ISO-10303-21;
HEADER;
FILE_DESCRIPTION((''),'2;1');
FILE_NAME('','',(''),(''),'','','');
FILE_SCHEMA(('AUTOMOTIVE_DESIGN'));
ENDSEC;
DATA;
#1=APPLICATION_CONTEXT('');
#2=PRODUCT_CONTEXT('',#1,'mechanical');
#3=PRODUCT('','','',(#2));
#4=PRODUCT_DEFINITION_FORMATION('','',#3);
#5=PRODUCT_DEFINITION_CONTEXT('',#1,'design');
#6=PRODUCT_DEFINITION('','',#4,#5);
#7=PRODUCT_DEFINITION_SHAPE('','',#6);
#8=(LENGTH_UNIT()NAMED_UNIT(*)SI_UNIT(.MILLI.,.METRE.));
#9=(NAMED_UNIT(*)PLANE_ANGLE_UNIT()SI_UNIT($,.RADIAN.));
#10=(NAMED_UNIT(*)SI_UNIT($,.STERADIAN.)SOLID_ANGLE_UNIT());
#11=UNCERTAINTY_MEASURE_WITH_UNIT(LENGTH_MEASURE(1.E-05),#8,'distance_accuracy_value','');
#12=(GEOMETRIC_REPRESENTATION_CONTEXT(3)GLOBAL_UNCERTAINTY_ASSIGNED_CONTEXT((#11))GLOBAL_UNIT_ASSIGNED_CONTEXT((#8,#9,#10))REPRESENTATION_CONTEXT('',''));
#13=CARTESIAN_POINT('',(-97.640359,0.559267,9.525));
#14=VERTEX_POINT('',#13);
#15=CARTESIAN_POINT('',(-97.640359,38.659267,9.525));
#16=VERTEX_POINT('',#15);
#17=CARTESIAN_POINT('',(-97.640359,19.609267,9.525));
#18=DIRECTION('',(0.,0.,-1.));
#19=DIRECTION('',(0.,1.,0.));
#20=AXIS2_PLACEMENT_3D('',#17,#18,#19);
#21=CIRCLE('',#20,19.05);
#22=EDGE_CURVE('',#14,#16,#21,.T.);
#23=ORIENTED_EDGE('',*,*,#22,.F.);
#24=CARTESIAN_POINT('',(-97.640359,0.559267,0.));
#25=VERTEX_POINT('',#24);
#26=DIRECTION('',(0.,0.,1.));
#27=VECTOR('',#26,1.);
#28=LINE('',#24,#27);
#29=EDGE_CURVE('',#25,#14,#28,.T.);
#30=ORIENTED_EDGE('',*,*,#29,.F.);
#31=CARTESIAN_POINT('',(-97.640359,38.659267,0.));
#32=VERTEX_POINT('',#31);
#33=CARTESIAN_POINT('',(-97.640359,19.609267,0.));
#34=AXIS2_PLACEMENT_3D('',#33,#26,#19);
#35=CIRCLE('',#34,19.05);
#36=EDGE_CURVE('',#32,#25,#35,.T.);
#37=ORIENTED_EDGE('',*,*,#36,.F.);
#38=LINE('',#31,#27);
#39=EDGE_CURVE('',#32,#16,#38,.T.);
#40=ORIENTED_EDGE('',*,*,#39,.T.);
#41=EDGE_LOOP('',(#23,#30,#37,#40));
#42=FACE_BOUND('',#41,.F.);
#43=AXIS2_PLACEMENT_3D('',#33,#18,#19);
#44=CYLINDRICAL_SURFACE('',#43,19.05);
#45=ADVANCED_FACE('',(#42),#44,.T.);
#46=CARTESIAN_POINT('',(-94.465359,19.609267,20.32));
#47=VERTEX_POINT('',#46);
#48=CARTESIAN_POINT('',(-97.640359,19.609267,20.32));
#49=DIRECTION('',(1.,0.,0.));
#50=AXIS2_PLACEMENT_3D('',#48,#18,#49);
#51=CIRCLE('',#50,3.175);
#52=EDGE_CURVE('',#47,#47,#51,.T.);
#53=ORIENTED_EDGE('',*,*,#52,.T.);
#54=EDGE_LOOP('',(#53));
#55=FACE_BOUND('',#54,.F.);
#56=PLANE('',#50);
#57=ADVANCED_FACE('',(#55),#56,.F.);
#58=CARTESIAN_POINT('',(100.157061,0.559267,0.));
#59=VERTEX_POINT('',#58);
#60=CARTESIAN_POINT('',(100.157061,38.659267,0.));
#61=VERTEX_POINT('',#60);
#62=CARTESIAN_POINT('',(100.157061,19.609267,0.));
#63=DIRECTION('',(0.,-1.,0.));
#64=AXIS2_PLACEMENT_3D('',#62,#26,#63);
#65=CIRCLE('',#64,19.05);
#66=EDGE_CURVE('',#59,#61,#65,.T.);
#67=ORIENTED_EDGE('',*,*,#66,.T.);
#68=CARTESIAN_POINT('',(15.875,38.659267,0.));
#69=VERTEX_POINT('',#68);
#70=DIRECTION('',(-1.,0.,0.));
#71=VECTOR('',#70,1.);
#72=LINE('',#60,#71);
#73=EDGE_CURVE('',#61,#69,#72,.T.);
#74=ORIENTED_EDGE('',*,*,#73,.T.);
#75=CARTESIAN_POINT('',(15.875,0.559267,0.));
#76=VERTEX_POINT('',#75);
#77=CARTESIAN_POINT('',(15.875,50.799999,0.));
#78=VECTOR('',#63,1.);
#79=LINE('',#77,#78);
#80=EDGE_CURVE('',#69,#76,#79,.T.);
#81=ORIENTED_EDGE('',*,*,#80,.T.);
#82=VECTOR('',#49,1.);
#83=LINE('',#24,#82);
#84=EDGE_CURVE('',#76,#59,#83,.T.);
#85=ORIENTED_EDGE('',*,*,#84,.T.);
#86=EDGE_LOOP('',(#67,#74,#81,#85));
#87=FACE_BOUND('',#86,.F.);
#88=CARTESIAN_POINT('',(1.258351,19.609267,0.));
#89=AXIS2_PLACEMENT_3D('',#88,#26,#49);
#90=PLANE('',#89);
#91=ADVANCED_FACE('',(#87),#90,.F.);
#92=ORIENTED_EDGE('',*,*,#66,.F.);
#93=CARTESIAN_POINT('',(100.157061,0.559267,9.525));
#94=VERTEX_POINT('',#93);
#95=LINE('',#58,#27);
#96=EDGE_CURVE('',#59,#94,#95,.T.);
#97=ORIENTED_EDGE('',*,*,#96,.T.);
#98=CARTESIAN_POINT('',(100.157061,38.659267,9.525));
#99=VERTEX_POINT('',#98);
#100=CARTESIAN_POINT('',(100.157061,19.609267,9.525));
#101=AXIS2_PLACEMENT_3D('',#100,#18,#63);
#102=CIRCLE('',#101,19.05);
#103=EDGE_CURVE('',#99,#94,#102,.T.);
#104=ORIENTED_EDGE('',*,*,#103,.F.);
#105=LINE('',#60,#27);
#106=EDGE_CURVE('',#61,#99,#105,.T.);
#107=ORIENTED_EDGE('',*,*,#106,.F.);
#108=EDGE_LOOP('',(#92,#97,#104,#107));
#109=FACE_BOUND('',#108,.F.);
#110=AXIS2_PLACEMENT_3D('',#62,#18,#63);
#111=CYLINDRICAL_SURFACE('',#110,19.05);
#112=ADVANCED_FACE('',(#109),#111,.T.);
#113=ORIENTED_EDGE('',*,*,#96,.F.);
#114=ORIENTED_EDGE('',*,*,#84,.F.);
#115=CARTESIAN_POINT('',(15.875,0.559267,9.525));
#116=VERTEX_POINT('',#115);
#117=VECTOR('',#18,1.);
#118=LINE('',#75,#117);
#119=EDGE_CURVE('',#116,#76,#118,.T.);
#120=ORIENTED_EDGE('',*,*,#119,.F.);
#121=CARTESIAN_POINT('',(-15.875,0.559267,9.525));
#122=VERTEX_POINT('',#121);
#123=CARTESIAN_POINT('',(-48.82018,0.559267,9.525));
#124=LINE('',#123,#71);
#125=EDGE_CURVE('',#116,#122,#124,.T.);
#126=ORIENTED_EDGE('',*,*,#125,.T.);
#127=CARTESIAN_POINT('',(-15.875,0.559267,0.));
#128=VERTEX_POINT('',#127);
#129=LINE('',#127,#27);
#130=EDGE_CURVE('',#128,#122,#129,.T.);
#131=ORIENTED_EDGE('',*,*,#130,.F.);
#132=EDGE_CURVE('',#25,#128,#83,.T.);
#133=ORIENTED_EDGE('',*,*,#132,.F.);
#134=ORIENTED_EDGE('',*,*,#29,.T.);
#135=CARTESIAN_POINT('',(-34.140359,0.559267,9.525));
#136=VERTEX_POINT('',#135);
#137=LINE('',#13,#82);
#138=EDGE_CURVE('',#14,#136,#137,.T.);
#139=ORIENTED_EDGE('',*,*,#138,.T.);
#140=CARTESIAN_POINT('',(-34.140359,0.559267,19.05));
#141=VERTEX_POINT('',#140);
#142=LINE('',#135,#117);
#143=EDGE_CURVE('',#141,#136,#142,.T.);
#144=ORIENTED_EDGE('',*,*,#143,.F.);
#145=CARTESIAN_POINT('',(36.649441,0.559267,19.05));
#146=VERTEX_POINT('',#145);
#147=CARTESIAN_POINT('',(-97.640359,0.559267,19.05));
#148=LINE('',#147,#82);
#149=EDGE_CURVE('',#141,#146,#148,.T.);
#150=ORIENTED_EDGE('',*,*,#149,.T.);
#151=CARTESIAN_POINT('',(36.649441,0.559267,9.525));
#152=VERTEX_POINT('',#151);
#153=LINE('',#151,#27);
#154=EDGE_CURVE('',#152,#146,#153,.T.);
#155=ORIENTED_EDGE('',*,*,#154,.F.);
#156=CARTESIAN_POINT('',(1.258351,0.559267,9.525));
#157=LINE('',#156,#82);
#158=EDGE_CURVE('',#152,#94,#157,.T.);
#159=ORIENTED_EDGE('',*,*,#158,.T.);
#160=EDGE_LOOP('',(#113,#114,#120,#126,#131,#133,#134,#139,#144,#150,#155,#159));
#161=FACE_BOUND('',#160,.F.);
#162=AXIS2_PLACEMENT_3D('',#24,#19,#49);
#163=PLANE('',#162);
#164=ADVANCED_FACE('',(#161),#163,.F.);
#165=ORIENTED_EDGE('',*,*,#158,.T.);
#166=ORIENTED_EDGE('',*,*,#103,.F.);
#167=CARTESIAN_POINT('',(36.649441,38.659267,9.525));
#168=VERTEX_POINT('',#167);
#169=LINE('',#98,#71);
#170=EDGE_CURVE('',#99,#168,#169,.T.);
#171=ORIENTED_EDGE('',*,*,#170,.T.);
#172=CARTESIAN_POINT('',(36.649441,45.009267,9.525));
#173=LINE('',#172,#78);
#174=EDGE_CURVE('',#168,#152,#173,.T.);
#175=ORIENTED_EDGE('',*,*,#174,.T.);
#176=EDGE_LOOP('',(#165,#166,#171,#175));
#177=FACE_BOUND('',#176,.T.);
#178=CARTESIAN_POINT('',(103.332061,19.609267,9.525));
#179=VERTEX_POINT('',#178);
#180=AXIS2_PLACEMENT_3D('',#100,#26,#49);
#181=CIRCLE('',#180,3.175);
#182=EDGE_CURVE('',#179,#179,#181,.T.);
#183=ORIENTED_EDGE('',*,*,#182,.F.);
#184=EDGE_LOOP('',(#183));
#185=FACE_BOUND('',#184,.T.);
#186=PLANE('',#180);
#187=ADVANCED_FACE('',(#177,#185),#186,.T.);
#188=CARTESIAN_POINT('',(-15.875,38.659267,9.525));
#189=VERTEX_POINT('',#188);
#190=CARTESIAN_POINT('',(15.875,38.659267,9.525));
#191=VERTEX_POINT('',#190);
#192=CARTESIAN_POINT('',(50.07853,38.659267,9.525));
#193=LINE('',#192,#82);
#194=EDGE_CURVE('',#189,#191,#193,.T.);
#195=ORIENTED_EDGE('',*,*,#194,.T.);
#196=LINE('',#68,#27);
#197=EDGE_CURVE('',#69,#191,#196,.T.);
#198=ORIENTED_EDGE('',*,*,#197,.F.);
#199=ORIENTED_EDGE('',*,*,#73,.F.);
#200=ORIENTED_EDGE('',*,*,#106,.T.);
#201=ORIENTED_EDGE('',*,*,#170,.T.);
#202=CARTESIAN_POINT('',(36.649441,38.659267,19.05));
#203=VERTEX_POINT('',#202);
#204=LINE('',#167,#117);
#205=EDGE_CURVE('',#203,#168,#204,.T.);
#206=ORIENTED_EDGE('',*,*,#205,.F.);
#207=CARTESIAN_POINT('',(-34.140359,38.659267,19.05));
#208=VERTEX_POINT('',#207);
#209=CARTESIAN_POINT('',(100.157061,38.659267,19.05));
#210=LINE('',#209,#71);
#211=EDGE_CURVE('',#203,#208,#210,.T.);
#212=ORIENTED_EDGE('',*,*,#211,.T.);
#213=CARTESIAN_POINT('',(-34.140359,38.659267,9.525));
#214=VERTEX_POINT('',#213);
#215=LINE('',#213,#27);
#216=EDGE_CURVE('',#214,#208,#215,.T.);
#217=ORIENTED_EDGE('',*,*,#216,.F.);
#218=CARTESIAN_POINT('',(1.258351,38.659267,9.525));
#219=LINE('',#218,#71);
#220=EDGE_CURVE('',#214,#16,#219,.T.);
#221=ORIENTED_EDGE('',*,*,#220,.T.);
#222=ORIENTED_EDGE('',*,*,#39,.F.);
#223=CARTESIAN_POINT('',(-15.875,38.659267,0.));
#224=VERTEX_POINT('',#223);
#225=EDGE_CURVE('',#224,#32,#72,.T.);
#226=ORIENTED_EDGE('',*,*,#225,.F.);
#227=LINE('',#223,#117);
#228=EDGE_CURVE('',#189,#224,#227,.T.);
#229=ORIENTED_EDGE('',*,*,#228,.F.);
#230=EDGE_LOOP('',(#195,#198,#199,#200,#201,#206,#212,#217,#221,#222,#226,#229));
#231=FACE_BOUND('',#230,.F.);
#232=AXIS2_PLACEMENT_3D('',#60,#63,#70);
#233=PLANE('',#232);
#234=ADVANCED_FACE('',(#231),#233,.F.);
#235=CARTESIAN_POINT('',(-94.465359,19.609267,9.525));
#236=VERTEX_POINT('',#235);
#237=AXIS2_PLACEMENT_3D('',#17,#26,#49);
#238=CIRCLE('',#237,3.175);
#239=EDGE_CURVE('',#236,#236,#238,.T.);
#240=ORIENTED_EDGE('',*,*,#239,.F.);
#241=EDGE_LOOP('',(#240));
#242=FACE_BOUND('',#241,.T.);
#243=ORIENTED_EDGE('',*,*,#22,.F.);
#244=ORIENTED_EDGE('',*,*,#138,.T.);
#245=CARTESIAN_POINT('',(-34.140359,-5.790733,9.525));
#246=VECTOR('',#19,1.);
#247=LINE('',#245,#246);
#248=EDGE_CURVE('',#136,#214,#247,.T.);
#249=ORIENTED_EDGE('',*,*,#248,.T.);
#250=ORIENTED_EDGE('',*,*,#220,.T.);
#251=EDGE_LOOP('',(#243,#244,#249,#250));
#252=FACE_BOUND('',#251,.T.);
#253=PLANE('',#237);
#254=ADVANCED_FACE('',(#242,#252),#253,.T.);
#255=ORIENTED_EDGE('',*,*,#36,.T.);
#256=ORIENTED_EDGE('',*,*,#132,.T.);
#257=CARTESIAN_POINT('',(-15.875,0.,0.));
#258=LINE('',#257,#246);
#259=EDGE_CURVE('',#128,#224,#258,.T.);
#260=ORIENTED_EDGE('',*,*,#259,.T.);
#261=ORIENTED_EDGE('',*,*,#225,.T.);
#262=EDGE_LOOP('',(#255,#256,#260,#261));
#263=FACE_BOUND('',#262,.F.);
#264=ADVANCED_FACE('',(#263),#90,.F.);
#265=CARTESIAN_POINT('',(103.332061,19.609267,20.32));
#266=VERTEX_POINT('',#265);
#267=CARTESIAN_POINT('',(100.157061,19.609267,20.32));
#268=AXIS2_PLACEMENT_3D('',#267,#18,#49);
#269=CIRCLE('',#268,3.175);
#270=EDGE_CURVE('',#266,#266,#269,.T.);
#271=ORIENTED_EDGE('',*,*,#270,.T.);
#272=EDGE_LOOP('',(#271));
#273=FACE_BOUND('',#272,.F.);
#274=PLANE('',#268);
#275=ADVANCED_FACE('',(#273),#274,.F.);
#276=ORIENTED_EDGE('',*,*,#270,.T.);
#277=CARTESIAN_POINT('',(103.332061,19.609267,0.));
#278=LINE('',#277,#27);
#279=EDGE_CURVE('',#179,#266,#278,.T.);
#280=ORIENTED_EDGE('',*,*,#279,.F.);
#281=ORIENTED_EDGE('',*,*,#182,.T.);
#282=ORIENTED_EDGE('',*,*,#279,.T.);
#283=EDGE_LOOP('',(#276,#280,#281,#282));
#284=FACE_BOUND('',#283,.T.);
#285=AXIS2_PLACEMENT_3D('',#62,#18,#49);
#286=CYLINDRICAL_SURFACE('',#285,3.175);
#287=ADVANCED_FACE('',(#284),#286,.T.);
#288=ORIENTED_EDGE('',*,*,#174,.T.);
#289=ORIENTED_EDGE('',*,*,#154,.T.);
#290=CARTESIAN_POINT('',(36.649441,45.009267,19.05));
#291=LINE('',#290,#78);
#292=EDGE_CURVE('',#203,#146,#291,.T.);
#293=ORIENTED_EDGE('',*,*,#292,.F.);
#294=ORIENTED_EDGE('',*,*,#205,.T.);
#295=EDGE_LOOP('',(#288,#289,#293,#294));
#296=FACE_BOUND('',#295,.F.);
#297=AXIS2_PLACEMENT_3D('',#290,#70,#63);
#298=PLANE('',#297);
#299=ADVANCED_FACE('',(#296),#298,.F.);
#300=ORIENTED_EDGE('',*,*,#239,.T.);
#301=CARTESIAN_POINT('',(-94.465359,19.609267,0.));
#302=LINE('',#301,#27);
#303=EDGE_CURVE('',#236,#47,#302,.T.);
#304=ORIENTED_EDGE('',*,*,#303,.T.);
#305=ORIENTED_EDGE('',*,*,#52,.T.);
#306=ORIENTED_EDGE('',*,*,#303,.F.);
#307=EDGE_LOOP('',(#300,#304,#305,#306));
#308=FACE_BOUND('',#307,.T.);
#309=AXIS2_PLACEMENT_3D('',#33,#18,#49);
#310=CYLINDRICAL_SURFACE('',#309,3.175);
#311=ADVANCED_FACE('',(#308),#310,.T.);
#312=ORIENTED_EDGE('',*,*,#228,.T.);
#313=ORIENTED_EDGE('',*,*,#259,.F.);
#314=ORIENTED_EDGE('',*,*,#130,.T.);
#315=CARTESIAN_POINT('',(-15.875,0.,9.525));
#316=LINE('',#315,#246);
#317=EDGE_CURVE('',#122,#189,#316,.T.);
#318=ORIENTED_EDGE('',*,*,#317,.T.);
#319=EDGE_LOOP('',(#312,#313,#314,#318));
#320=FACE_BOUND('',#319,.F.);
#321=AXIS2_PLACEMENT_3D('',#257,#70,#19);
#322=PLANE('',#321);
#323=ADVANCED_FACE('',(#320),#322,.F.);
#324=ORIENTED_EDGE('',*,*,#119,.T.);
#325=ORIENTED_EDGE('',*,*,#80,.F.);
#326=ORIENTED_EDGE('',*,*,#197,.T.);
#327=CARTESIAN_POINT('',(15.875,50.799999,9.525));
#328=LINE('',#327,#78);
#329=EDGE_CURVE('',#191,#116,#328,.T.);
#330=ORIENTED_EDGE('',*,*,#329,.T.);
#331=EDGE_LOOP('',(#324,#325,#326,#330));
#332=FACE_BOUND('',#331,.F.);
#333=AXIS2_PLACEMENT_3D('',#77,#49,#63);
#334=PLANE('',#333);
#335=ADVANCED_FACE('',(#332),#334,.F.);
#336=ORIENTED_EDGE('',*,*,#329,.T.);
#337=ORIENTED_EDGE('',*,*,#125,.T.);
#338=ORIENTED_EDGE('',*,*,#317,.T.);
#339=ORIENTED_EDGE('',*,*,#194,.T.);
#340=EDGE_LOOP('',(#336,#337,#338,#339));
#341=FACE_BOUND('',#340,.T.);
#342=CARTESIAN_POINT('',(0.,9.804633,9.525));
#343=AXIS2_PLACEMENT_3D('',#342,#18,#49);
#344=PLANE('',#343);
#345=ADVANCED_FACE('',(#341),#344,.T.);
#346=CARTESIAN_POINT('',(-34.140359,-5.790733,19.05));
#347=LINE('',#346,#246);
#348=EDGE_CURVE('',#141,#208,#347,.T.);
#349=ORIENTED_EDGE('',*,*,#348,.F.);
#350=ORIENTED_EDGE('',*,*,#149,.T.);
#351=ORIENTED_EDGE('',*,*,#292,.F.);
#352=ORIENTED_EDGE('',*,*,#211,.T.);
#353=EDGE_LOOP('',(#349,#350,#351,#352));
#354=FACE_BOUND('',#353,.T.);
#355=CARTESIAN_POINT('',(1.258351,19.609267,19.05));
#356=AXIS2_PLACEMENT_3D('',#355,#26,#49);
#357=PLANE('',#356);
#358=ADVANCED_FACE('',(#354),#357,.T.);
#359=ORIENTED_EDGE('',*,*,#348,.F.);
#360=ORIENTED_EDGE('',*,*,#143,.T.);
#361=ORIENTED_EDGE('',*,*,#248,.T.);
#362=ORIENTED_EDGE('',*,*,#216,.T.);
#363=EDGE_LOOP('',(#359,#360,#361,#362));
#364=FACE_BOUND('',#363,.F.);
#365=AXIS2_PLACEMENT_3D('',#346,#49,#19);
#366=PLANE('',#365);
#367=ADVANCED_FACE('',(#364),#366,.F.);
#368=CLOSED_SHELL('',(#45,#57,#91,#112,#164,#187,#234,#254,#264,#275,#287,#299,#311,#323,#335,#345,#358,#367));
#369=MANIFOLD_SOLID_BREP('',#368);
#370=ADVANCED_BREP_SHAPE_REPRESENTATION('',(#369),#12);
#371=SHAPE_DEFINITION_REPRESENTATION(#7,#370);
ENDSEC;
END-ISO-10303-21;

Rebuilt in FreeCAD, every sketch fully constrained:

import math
import FreeCAD as App
import Part
import Sketcher

V = App.Vector
Q = App.Units.Quantity

doc = App.newDocument("Part")
body = doc.addObject("PartDesign::Body", "Body")

# Sketch on XY plane
sketch1 = body.newObject("Sketcher::SketchObject", "Sketch")
sketch1.AttachmentSupport = (doc.getObject("XY_Plane"), [""])
sketch1.MapMode = "FlatFace"
sketch1.addGeometry([
    Part.ArcOfCircle(Part.Circle(V(100.2, 19.6, 0), V(0, 0, 1), 19.1), math.radians(-90), math.radians(90)),  # 0
    Part.LineSegment(V(100.2, 38.7, 0), V(-97.6, 38.7, 0)),  # 1
    Part.ArcOfCircle(Part.Circle(V(-97.6, 19.6, 0), V(0, 0, 1), 19.1), math.radians(90), math.radians(270)),  # 2
    Part.LineSegment(V(-97.6, 0.6, 0), V(100.2, 0.6, 0)),  # 3
    Part.Circle(V(-97.6, 19.6, 0), V(0, 0, 1), 3.2),  # 4
    Part.Circle(V(100.2, 19.6, 0), V(0, 0, 1), 3.2),  # 5
], False)
sketch1.addConstraint([
    Sketcher.Constraint("Tangent", 0, 2, 1, 1),
    Sketcher.Constraint("Tangent", 1, 2, 2, 1),
    Sketcher.Constraint("Tangent", 2, 2, 3, 1),
    Sketcher.Constraint("Tangent", 3, 2, 0, 1),
    Sketcher.Constraint("Horizontal", 1),
    Sketcher.Constraint("Horizontal", 3),
    Sketcher.Constraint("Coincident", 4, 3, 2, 3),
    Sketcher.Constraint("Coincident", 5, 3, 0, 3),
    Sketcher.Constraint("Equal", 4, 5),
    Sketcher.Constraint("Diameter", 4, Q("0.25 in")),
    Sketcher.Constraint("Radius", 0, Q("0.75 in")),
    Sketcher.Constraint("DistanceX", 1, 2, 1, 1, Q("7.7873 in")),
    Sketcher.Constraint("DistanceX", -1, 1, 0, 3, 100.157061),
    Sketcher.Constraint("DistanceY", -1, 1, 0, 3, 19.609267),
])
pad1 = body.newObject("PartDesign::Pad", "Pad")
pad1.Profile = sketch1
pad1.Length = Q("0.75 in")

# Sketch on XY plane
sketch2 = body.newObject("Sketcher::SketchObject", "Sketch001")
sketch2.AttachmentSupport = (doc.getObject("XY_Plane"), [""])
sketch2.MapMode = "FlatFace"
sketch2.AttachmentOffset = App.Placement(V(0, 0, 0.75 * 25.4), App.Rotation())
sketch2.addGeometry([
    Part.LineSegment(V(-34.1, -5.8, 0), V(-34.1, 45, 0)),  # 0
    Part.LineSegment(V(-34.1, 45, 0), V(-97.6, 45, 0)),  # 1
    Part.ArcOfCircle(Part.Circle(V(-97.6, 19.6, 0), V(0, 0, 1), 25.4), math.radians(90), math.radians(270)),  # 2
    Part.LineSegment(V(-97.6, -5.8, 0), V(-34.1, -5.8, 0)),  # 3
    Part.Circle(V(-97.6, 19.6, 0), V(0, 0, 1), 3.2),  # 4
    Part.ArcOfCircle(Part.Circle(V(100.1, 19.6, 0), V(0, 0, 1), 25.4), math.radians(-90), math.radians(90)),  # 5
    Part.LineSegment(V(100.1, 45, 0), V(36.6, 45, 0)),  # 6
    Part.LineSegment(V(36.6, 45, 0), V(36.6, -5.8, 0)),  # 7
    Part.LineSegment(V(36.6, -5.8, 0), V(100.1, -5.8, 0)),  # 8
    Part.Circle(V(100.2, 19.6, 0), V(0, 0, 1), 3.2),  # 9
], False)
sketch2.addConstraint([
    Sketcher.Constraint("Coincident", 0, 2, 1, 1),
    Sketcher.Constraint("Tangent", 1, 2, 2, 1),
    Sketcher.Constraint("Tangent", 2, 2, 3, 1),
    Sketcher.Constraint("Coincident", 3, 2, 0, 1),
    Sketcher.Constraint("Tangent", 5, 2, 6, 1),
    Sketcher.Constraint("Coincident", 6, 2, 7, 1),
    Sketcher.Constraint("Coincident", 7, 2, 8, 1),
    Sketcher.Constraint("Tangent", 8, 2, 5, 1),
    Sketcher.Constraint("Vertical", 0),
    Sketcher.Constraint("Horizontal", 1),
    Sketcher.Constraint("Horizontal", 3),
    Sketcher.Constraint("Horizontal", 6),
    Sketcher.Constraint("Vertical", 7),
    Sketcher.Constraint("Horizontal", 8),
    Sketcher.Constraint("Coincident", 4, 3, 2, 3),
    Sketcher.Constraint("Equal", 2, 5),
    Sketcher.Constraint("Equal", 4, 9),
    Sketcher.Constraint("Horizontal", 4, 3, 5, 3),
    Sketcher.Constraint("Horizontal", 5, 3, 9, 3),
    Sketcher.Constraint("Equal", 3, 6),
    Sketcher.Constraint("Radius", 2, Q("1 in")),
    Sketcher.Constraint("Diameter", 4, Q("0.25 in")),
    Sketcher.Constraint("DistanceX", 1, 2, 1, 1, Q("2.5 in")),
    Sketcher.Constraint("DistanceX", 2, 3, 5, 3, Q("7.787 in")),
    Sketcher.Constraint("DistanceX", 5, 3, 9, 3, Q("0.0003 in")),
    Sketcher.Constraint("DistanceX", 2, 3, -1, 1, 97.640359),
    Sketcher.Constraint("DistanceY", -1, 1, 2, 3, 19.609267),
])
pocket1 = body.newObject("PartDesign::Pocket", "Pocket")
pocket1.Profile = sketch2
pocket1.Length = Q("0.375 in")

# Sketch on XY plane
sketch3 = body.newObject("Sketcher::SketchObject", "Sketch002")
sketch3.AttachmentSupport = (doc.getObject("XY_Plane"), [""])
sketch3.MapMode = "FlatFace"
sketch3.addGeometry([
    Part.LineSegment(V(16, 0, 0), V(-16, 0, 0)),
    Part.LineSegment(V(-16, 0, 0), V(-16, 51, 0)),
    Part.LineSegment(V(-16, 51, 0), V(16, 51, 0)),
    Part.LineSegment(V(16, 51, 0), V(16, 0, 0)),
], False)
sketch3.addConstraint([
    Sketcher.Constraint("Coincident", 0, 2, 1, 1),
    Sketcher.Constraint("Coincident", 1, 2, 2, 1),
    Sketcher.Constraint("Coincident", 2, 2, 3, 1),
    Sketcher.Constraint("Coincident", 3, 2, 0, 1),
    Sketcher.Constraint("Horizontal", 0),
    Sketcher.Constraint("Vertical", 1),
    Sketcher.Constraint("Horizontal", 2),
    Sketcher.Constraint("Vertical", 3),
    Sketcher.Constraint("Symmetric", 0, 2, 3, 2, -1, 1),
    Sketcher.Constraint("DistanceY", 1, 1, 1, 2, Q("2 in")),
    Sketcher.Constraint("DistanceX", 0, 2, 0, 1, Q("1.25 in")),
])
pocket2 = body.newObject("PartDesign::Pocket", "Pocket001")
pocket2.Profile = sketch3
pocket2.Length = Q("0.375 in")
pocket2.Reversed = True

# Sketch on XY plane
sketch4 = body.newObject("Sketcher::SketchObject", "Sketch003")
sketch4.AttachmentSupport = (doc.getObject("XY_Plane"), [""])
sketch4.MapMode = "FlatFace"
sketch4.addGeometry(Part.Circle(V(-97.6, 19.6, 0), V(0, 0, 1), 3.2), False)
sketch4.addConstraint([
    Sketcher.Constraint("Diameter", 0, Q("0.25 in")),
    Sketcher.Constraint("DistanceX", 0, 3, -1, 1, 97.640359),
    Sketcher.Constraint("DistanceY", -1, 1, 0, 3, 19.609267),
])
pad2 = body.newObject("PartDesign::Pad", "Pad001")
pad2.Profile = sketch4
pad2.Length = Q("0.8 in")

# Sketch on XY plane
sketch5 = body.newObject("Sketcher::SketchObject", "Sketch004")
sketch5.AttachmentSupport = (doc.getObject("XY_Plane"), [""])
sketch5.MapMode = "FlatFace"
sketch5.addGeometry(Part.Circle(V(100.2, 19.6, 0), V(0, 0, 1), 3.2), False)
sketch5.addConstraint([
    Sketcher.Constraint("Diameter", 0, Q("0.25 in")),
    Sketcher.Constraint("DistanceX", -1, 1, 0, 3, 100.157061),
    Sketcher.Constraint("DistanceY", -1, 1, 0, 3, 19.609267),
])
pad3 = body.newObject("PartDesign::Pad", "Pad002")
pad3.Profile = sketch5
pad3.Length = Q("0.8 in")

doc.recompute()
